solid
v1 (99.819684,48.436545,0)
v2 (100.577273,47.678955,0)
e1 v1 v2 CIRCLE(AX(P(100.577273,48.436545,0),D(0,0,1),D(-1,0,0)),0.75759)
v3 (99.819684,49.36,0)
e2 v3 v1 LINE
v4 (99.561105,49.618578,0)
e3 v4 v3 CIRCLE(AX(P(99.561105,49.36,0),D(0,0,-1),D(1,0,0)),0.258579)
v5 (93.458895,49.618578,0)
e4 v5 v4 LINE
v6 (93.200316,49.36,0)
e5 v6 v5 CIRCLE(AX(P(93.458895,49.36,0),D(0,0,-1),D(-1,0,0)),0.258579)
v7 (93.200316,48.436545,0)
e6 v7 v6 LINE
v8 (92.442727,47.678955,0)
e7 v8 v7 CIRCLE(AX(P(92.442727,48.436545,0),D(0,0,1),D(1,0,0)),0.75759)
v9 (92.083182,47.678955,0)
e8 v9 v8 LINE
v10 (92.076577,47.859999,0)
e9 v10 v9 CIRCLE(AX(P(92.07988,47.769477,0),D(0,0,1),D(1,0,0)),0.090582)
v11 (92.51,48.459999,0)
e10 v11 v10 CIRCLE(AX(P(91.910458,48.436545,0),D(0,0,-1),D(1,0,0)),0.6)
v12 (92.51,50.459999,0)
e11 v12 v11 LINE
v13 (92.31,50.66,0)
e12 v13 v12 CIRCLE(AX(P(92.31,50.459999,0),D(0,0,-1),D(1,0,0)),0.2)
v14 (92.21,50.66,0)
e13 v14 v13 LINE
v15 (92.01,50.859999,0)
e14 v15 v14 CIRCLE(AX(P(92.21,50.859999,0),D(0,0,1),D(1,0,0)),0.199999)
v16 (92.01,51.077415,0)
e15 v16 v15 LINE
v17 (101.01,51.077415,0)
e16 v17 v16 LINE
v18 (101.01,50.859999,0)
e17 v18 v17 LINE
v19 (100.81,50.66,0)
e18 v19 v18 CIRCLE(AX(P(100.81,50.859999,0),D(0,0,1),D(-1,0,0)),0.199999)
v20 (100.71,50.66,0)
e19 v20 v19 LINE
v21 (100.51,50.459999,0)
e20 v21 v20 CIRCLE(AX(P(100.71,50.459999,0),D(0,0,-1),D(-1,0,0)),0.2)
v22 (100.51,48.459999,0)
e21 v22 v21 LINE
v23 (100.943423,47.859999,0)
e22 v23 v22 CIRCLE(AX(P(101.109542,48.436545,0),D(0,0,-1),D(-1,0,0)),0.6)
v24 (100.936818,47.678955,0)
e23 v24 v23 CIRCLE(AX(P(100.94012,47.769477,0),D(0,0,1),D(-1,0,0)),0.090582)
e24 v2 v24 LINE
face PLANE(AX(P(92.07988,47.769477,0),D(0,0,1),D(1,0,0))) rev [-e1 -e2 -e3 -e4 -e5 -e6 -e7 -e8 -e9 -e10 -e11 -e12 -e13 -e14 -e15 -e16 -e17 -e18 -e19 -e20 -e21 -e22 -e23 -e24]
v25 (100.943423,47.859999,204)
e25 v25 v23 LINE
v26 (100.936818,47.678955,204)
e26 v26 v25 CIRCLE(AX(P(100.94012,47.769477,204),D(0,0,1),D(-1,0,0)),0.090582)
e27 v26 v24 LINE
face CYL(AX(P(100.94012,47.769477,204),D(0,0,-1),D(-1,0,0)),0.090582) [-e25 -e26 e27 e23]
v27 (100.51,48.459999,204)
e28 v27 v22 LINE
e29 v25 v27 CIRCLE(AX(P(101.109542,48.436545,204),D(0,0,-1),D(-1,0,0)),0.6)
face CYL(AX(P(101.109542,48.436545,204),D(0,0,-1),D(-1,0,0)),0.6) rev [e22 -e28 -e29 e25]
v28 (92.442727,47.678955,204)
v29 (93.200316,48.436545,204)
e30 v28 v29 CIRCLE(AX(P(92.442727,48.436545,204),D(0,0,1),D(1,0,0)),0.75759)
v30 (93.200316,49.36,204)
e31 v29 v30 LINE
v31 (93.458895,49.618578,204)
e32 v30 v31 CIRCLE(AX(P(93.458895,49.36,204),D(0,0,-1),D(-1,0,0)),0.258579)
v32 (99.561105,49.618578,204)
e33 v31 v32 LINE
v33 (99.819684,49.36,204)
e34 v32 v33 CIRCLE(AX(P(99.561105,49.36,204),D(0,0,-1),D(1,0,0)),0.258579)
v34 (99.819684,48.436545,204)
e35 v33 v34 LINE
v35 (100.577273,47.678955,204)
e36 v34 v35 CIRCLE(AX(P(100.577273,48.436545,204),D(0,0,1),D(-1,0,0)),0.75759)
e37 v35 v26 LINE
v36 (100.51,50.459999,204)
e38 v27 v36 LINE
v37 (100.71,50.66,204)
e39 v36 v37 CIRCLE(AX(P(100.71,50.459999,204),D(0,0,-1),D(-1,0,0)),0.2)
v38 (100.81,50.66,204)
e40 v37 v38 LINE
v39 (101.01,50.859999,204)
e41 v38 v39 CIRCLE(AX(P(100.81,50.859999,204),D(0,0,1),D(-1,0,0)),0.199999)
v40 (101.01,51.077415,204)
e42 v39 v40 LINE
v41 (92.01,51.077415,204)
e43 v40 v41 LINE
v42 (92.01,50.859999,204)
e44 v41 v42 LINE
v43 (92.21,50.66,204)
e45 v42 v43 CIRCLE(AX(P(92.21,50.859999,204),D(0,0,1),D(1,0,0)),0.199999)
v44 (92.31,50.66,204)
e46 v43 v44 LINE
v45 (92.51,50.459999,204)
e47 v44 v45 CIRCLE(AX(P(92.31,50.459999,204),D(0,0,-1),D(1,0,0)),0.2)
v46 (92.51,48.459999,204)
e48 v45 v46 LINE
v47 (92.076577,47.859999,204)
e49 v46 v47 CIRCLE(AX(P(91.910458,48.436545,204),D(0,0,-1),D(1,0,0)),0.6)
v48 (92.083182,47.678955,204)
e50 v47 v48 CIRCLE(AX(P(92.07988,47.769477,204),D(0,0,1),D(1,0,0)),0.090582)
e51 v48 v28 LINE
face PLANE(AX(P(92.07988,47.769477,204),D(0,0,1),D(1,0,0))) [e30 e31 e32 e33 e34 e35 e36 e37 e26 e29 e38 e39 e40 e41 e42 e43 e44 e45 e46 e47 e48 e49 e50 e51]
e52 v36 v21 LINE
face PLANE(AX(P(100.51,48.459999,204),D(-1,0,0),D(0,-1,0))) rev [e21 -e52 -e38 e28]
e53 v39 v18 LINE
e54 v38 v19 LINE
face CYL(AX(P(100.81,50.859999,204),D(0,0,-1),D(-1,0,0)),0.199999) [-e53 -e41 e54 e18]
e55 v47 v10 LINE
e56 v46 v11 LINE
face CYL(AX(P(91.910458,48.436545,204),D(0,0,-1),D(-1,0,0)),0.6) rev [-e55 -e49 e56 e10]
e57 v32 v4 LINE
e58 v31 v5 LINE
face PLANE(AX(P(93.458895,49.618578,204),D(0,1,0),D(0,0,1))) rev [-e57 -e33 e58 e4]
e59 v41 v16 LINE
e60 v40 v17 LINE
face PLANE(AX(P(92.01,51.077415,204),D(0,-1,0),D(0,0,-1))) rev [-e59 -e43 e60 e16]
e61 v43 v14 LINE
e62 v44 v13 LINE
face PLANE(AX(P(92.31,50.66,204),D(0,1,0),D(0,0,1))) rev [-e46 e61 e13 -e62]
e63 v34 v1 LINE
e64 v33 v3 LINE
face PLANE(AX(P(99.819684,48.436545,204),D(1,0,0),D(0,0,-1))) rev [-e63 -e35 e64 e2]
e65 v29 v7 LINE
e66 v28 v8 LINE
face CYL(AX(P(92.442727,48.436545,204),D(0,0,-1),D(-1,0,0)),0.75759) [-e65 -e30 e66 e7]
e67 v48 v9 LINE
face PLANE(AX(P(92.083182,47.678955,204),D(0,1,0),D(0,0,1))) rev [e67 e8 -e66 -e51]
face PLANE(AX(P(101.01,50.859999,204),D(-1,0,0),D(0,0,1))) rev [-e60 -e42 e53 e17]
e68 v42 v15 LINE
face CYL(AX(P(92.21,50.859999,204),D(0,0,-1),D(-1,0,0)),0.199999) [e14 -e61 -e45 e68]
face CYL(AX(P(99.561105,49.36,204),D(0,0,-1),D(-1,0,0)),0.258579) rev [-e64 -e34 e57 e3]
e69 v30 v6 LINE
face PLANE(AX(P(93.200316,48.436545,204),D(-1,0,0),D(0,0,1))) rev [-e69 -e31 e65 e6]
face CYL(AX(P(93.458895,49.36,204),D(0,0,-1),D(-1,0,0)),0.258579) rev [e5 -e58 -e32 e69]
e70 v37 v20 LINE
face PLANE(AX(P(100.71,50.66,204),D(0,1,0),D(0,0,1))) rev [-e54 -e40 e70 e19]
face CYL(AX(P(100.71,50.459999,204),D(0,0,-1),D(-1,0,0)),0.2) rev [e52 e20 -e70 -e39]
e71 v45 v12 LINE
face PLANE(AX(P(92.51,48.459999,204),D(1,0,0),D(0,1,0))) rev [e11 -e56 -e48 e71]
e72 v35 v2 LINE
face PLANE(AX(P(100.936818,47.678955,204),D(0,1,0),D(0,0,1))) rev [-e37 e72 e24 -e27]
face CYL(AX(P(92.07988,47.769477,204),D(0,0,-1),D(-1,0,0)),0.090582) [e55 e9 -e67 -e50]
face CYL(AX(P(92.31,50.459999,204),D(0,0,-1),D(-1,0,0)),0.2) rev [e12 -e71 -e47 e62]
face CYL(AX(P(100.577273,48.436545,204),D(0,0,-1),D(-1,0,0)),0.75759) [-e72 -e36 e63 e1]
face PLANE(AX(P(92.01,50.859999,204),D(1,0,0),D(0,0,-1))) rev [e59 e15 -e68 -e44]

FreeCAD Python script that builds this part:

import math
import FreeCAD as App
import Part
import Sketcher

V = App.Vector
Q = App.Units.Quantity

doc = App.newDocument("Part")
body = doc.addObject("PartDesign::Body", "Body")

# Sketch on XY plane
sketch1 = doc.addObject("Sketcher::SketchObject", "Sketch")
body.addObject(sketch1)
sketch1.AttachmentSupport = (doc.XY_Plane, [""])
sketch1.MapMode = "FlatFace"
sketch1.addGeometry([
    Part.LineSegment(V(101.01, 51.08, 0), V(92.01, 51.08, 0)),  # 0
    Part.LineSegment(V(92.01, 51.08, 0), V(92.01, 50.86, 0)),  # 1
    Part.ArcOfCircle(Part.Circle(V(92.21, 50.86, 0), V(0, 0, 1), 0.2), math.radians(180), math.radians(270)),  # 2
    Part.LineSegment(V(92.21, 50.66, 0), V(92.31, 50.66, 0)),  # 3
    Part.ArcOfCircle(Part.Circle(V(92.31, 50.46, 0), V(0, 0, 1), 0.2), math.radians(0), math.radians(90)),  # 4
    Part.LineSegment(V(92.51, 50.46, 0), V(92.51, 48.46, 0)),  # 5
    Part.ArcOfCircle(Part.Circle(V(91.91, 48.44, 0), V(0, 0, 1), 0.6), math.radians(-74), math.radians(2)),  # 6
    Part.ArcOfCircle(Part.Circle(V(92.08, 47.77, 0), V(0, 0, 1), 0.09), math.radians(92), math.radians(272)),  # 7
    Part.LineSegment(V(92.08, 47.68, 0), V(92.44, 47.68, 0)),  # 8
    Part.ArcOfCircle(Part.Circle(V(92.44, 48.44, 0), V(0, 0, 1), 0.76), math.radians(-90), math.radians(0)),  # 9
    Part.LineSegment(V(93.2, 48.44, 0), V(93.2, 49.36, 0)),  # 10
    Part.ArcOfCircle(Part.Circle(V(93.46, 49.36, 0), V(0, 0, 1), 0.26), math.radians(90), math.radians(180)),  # 11
    Part.LineSegment(V(93.46, 49.62, 0), V(99.56, 49.62, 0)),  # 12
    Part.ArcOfCircle(Part.Circle(V(99.56, 49.36, 0), V(0, 0, 1), 0.26), math.radians(0), math.radians(90)),  # 13
    Part.LineSegment(V(99.82, 49.36, 0), V(99.82, 48.44, 0)),  # 14
    Part.ArcOfCircle(Part.Circle(V(100.58, 48.44, 0), V(0, 0, 1), 0.76), math.radians(180), math.radians(270)),  # 15
    Part.LineSegment(V(100.58, 47.68, 0), V(100.94, 47.68, 0)),  # 16
    Part.ArcOfCircle(Part.Circle(V(100.94, 47.77, 0), V(0, 0, 1), 0.09), math.radians(-92), math.radians(88)),  # 17
    Part.ArcOfCircle(Part.Circle(V(101.11, 48.44, 0), V(0, 0, 1), 0.6), math.radians(178), math.radians(254)),  # 18
    Part.LineSegment(V(100.51, 48.46, 0), V(100.51, 50.46, 0)),  # 19
    Part.ArcOfCircle(Part.Circle(V(100.71, 50.46, 0), V(0, 0, 1), 0.2), math.radians(90), math.radians(180)),  # 20
    Part.LineSegment(V(100.71, 50.66, 0), V(100.81, 50.66, 0)),  # 21
    Part.ArcOfCircle(Part.Circle(V(100.81, 50.86, 0), V(0, 0, 1), 0.2), math.radians(-90), math.radians(0)),  # 22
    Part.LineSegment(V(101.01, 50.86, 0), V(101.01, 51.08, 0)),  # 23
], False)
sketch1.addConstraint([
    Sketcher.Constraint("Coincident", 0, 2, 1, 1),
    Sketcher.Constraint("Tangent", 1, 2, 2, 1),
    Sketcher.Constraint("Tangent", 2, 2, 3, 1),
    Sketcher.Constraint("Tangent", 3, 2, 4, 2),
    Sketcher.Constraint("Tangent", 4, 1, 5, 1),
    Sketcher.Constraint("Coincident", 5, 2, 6, 2),
    Sketcher.Constraint("Coincident", 6, 1, 7, 1),
    Sketcher.Constraint("Coincident", 7, 2, 8, 1),
    Sketcher.Constraint("Tangent", 8, 2, 9, 1),
    Sketcher.Constraint("Tangent", 9, 2, 10, 1),
    Sketcher.Constraint("Tangent", 10, 2, 11, 2),
    Sketcher.Constraint("Tangent", 11, 1, 12, 1),
    Sketcher.Constraint("Tangent", 12, 2, 13, 2),
    Sketcher.Constraint("Tangent", 13, 1, 14, 1),
    Sketcher.Constraint("Tangent", 14, 2, 15, 1),
    Sketcher.Constraint("Tangent", 15, 2, 16, 1),
    Sketcher.Constraint("Coincident", 16, 2, 17, 1),
    Sketcher.Constraint("Coincident", 17, 2, 18, 2),
    Sketcher.Constraint("Coincident", 18, 1, 19, 1),
    Sketcher.Constraint("Tangent", 19, 2, 20, 2),
    Sketcher.Constraint("Tangent", 20, 1, 21, 1),
    Sketcher.Constraint("Tangent", 21, 2, 22, 1),
    Sketcher.Constraint("Tangent", 22, 2, 23, 1),
    Sketcher.Constraint("Coincident", 23, 2, 0, 1),
    Sketcher.Constraint("Horizontal", 0),
    Sketcher.Constraint("Vertical", 1),
    Sketcher.Constraint("Horizontal", 3),
    Sketcher.Constraint("Vertical", 5),
    Sketcher.Constraint("Horizontal", 8),
    Sketcher.Constraint("Vertical", 10),
    Sketcher.Constraint("Horizontal", 12),
    Sketcher.Constraint("Vertical", 14),
    Sketcher.Constraint("Horizontal", 16),
    Sketcher.Constraint("Vertical", 19),
    Sketcher.Constraint("Horizontal", 21),
    Sketcher.Constraint("Vertical", 23),
    Sketcher.Constraint("Equal", 2, 4),
    Sketcher.Constraint("Equal", 11, 13),
    Sketcher.Constraint("Equal", 9, 15),
    Sketcher.Constraint("Equal", 7, 17),
    Sketcher.Constraint("Equal", 6, 18),
    Sketcher.Constraint("Equal", 4, 20),
    Sketcher.Constraint("Equal", 20, 22),
    Sketcher.Constraint("Horizontal", 6, 3, 9, 3),
    Sketcher.Constraint("Horizontal", 9, 3, 15, 3),
    Sketcher.Constraint("Horizontal", 7, 3, 17, 3),
    Sketcher.Constraint("Horizontal", 15, 3, 18, 3),
    Sketcher.Constraint("Horizontal", 4, 3, 20, 3),
    Sketcher.Constraint("Horizontal", 6, 1, 17, 2),
    Sketcher.Constraint("Horizontal", 5, 2, 18, 1),
    Sketcher.Constraint("Equal", 8, 16),
    Sketcher.Constraint("Equal", 3, 21),
    Sketcher.Constraint("Radius", 2, Q("0.199999 mm")),
    Sketcher.Constraint("Radius", 6, Q("0.6 mm")),
    Sketcher.Constraint("DistanceX", 0, 2, 0, 1, Q("8.999999 mm")),
    Sketcher.Constraint("DistanceY", 5, 2, 5, 1, Q("2 mm")),
    Sketcher.Constraint("DistanceX", 3, 1, 3, 2, Q("0.1 mm")),
    Sketcher.Constraint("DistanceY", 11, 3, 4, 3, Q("1.1 mm")),
    Sketcher.Constraint("DistanceY", 6, 1, 5, 2, Q("0.6 mm")),
    Sketcher.Constraint("DistanceX", -1, 1, 2, 3, Q("92.21 mm")),
    Sketcher.Constraint("DistanceY", -1, 1, 2, 3, Q("50.859999 mm")),
    Sketcher.Constraint("Radius", 9, Q("0.75759 mm")),
    Sketcher.Constraint("Radius", 11, Q("0.258579 mm")),
    Sketcher.Constraint("Radius", 7, Q("0.090582 mm")),
    Sketcher.Constraint("DistanceX", 12, 1, 12, 2, Q("6.10221 mm")),
    Sketcher.Constraint("DistanceX", 8, 1, 8, 2, Q("0.359544 mm")),
    Sketcher.Constraint("DistanceY", 1, 2, 1, 1, Q("0.217416 mm")),
    Sketcher.Constraint("DistanceX", -1, 1, 7, 3, Q("92.07988 mm")),
])
pad1 = doc.addObject("PartDesign::Pad", "Pad")
body.addObject(pad1)
pad1.Profile = sketch1
pad1.Length = 204

doc.recompute()
